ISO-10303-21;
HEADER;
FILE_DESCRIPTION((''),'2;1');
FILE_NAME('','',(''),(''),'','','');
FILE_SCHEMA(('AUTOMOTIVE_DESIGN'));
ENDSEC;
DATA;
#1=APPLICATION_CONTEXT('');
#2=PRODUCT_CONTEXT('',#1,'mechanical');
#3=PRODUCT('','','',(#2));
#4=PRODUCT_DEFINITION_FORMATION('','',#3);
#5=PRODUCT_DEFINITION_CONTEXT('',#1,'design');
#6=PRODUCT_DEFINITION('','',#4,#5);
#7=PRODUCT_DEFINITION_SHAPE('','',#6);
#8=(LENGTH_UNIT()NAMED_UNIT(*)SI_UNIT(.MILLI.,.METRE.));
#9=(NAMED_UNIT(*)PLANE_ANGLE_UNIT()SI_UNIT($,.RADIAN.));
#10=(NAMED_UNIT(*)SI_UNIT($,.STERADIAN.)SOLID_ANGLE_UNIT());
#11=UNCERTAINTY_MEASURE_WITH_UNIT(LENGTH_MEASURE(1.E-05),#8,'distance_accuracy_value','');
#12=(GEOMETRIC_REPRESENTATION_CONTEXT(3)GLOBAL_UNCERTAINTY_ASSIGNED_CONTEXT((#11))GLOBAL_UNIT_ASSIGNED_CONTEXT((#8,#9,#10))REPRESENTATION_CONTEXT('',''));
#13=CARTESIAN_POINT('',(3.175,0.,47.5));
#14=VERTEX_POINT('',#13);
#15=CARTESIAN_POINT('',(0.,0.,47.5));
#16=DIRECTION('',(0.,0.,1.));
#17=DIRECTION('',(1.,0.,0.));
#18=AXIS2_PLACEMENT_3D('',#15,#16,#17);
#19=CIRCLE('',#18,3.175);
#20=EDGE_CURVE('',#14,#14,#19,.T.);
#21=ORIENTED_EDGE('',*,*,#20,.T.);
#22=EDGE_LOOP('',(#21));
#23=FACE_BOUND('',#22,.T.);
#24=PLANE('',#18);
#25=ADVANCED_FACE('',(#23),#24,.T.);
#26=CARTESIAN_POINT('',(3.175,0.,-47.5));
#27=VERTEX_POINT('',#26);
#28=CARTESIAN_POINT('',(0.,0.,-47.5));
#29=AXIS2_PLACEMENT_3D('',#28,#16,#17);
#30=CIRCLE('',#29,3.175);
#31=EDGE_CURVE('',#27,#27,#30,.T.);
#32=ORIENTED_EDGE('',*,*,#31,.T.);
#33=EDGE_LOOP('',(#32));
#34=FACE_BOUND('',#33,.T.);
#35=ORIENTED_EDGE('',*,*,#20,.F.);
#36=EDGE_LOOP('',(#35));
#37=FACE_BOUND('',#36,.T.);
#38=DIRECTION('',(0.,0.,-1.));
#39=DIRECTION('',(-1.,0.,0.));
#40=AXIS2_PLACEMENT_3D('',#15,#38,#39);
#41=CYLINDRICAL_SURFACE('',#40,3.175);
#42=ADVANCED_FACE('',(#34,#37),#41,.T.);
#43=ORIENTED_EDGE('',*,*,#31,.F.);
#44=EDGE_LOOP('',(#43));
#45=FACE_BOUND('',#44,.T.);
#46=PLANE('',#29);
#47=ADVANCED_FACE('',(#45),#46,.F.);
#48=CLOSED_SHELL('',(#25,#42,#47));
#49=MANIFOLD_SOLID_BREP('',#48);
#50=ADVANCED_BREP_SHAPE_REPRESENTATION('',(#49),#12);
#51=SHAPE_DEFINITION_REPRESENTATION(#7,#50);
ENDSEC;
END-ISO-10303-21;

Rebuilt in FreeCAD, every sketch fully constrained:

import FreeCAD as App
import Part
import Sketcher

V = App.Vector

doc = App.newDocument("Part")
body = doc.addObject("PartDesign::Body", "Body")

# Sketch on XY plane
sketch1 = body.newObject("Sketcher::SketchObject", "Sketch")
sketch1.AttachmentSupport = (doc.getObject("XY_Plane"), [""])
sketch1.MapMode = "FlatFace"
sketch1.addGeometry(Part.Circle(V(0, 0, 0), V(0, 0, 1), 3.2), False)
sketch1.addConstraint([
    Sketcher.Constraint("Coincident", 0, 3, -1, 1),
    Sketcher.Constraint("Diameter", 0, 6.35),
])
pad1 = body.newObject("PartDesign::Pad", "Pad")
pad1.Profile = sketch1
pad1.Length = 95
pad1.Midplane = True

doc.recompute()
